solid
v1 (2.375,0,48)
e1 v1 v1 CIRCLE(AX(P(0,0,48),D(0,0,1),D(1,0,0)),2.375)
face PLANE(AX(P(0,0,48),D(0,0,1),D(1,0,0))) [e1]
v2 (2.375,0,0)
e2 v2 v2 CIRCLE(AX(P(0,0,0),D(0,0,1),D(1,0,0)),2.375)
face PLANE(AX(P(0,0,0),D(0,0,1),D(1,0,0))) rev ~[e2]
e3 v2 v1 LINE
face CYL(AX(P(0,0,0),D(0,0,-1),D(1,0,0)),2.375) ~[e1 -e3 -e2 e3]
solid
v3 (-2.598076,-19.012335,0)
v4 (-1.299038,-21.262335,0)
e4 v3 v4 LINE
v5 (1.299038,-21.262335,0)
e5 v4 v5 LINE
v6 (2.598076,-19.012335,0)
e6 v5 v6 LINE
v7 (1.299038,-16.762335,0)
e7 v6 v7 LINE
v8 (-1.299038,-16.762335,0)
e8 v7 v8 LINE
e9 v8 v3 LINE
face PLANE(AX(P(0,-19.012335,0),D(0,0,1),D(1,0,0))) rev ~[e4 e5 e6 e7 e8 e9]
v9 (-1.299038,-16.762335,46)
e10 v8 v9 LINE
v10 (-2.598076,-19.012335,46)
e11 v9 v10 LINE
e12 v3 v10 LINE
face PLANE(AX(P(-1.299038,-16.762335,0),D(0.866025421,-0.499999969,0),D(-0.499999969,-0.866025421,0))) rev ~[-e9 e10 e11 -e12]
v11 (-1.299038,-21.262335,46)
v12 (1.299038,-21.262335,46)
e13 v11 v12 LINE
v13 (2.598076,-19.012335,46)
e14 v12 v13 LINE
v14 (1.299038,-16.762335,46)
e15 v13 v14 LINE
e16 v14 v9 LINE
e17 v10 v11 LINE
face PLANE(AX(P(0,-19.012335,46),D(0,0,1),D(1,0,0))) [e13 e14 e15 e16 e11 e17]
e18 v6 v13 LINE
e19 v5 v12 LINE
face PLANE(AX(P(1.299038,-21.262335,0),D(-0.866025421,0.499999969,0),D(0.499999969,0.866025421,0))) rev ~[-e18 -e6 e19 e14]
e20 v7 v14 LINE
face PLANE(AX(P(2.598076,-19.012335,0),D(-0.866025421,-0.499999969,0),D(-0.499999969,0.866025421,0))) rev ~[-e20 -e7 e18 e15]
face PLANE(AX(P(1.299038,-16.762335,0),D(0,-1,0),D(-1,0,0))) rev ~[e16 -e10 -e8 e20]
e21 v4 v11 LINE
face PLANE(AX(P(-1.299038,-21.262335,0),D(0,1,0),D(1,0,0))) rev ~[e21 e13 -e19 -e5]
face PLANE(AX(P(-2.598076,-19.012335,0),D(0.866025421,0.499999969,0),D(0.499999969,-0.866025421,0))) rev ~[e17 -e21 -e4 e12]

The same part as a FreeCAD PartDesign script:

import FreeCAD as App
import Part
import Sketcher
from FreeCAD import Vector
Q = App.Units.Quantity

doc = App.newDocument("Part")
body = doc.addObject("PartDesign::Body", "Body")

# Sketch on XY plane
sketch1 = body.newObject("Sketcher::SketchObject", "Sketch")
sketch1.AttachmentSupport = (doc.getObject("XY_Plane"), [""])
sketch1.MapMode = "FlatFace"
sketch1.addGeometry(Part.Circle(Vector(0, 0, 0), Vector(0, 0, 1), 2.375), False)
sketch1.addConstraint([
    Sketcher.Constraint("Coincident", 0, 3, -1, 1),
    Sketcher.Constraint("Diameter", 0, 4.75),
])
pad1 = body.newObject("PartDesign::Pad", "Pad")
pad1.Profile = sketch1
pad1.Length = 48
body2 = doc.addObject("PartDesign::Body", "Body001")

# Sketch on XY plane
sketch2 = body2.newObject("Sketcher::SketchObject", "Sketch001")
sketch2.AttachmentSupport = (doc.getObject("XY_Plane001"), [""])
sketch2.MapMode = "FlatFace"
sketch2.addGeometry([
    Part.LineSegment(Vector(-1.299038, -21.262335, 0), Vector(1.299038, -21.262335, 0)),  # 0
    Part.LineSegment(Vector(1.299038, -21.262335, 0), Vector(2.598076, -19.012335, 0)),  # 1
    Part.LineSegment(Vector(2.598076, -19.012335, 0), Vector(1.299038, -16.762335, 0)),  # 2
    Part.LineSegment(Vector(1.299038, -16.762335, 0), Vector(-1.299038, -16.762335, 0)),  # 3
    Part.LineSegment(Vector(-1.299038, -16.762335, 0), Vector(-2.598076, -19.012335, 0)),  # 4
    Part.LineSegment(Vector(-2.598076, -19.012335, 0), Vector(-1.299038, -21.262335, 0)),  # 5
], False)
sketch2.addConstraint([
    Sketcher.Constraint("Coincident", 0, 2, 1, 1),
    Sketcher.Constraint("Coincident", 1, 2, 2, 1),
    Sketcher.Constraint("Coincident", 2, 2, 3, 1),
    Sketcher.Constraint("Coincident", 3, 2, 4, 1),
    Sketcher.Constraint("Coincident", 4, 2, 5, 1),
    Sketcher.Constraint("Coincident", 5, 2, 0, 1),
    Sketcher.Constraint("Horizontal", 0),
    Sketcher.Constraint("Horizontal", 3),
    Sketcher.Constraint("Symmetric", 1, 2, 4, 2, -2),
    Sketcher.Constraint("Parallel", 1, 4),
    Sketcher.Constraint("Parallel", 2, 5),
    Sketcher.Constraint("Vertical", 0, 2, 2, 2),
    Sketcher.Constraint("Vertical", 3, 2, 5, 2),
    Sketcher.Constraint("Angle", 1, Q("60.000002 deg")),
    Sketcher.Constraint("DistanceY", 0, 2, 2, 2, 4.5),
    Sketcher.Constraint("DistanceX", 0, 1, 0, 2, 2.598076),
    Sketcher.Constraint("DistanceY", 0, 2, -1, 1, 21.262335),
])
pad2 = body2.newObject("PartDesign::Pad", "Pad001")
pad2.Profile = sketch2
pad2.Length = 46

doc.recompute()
